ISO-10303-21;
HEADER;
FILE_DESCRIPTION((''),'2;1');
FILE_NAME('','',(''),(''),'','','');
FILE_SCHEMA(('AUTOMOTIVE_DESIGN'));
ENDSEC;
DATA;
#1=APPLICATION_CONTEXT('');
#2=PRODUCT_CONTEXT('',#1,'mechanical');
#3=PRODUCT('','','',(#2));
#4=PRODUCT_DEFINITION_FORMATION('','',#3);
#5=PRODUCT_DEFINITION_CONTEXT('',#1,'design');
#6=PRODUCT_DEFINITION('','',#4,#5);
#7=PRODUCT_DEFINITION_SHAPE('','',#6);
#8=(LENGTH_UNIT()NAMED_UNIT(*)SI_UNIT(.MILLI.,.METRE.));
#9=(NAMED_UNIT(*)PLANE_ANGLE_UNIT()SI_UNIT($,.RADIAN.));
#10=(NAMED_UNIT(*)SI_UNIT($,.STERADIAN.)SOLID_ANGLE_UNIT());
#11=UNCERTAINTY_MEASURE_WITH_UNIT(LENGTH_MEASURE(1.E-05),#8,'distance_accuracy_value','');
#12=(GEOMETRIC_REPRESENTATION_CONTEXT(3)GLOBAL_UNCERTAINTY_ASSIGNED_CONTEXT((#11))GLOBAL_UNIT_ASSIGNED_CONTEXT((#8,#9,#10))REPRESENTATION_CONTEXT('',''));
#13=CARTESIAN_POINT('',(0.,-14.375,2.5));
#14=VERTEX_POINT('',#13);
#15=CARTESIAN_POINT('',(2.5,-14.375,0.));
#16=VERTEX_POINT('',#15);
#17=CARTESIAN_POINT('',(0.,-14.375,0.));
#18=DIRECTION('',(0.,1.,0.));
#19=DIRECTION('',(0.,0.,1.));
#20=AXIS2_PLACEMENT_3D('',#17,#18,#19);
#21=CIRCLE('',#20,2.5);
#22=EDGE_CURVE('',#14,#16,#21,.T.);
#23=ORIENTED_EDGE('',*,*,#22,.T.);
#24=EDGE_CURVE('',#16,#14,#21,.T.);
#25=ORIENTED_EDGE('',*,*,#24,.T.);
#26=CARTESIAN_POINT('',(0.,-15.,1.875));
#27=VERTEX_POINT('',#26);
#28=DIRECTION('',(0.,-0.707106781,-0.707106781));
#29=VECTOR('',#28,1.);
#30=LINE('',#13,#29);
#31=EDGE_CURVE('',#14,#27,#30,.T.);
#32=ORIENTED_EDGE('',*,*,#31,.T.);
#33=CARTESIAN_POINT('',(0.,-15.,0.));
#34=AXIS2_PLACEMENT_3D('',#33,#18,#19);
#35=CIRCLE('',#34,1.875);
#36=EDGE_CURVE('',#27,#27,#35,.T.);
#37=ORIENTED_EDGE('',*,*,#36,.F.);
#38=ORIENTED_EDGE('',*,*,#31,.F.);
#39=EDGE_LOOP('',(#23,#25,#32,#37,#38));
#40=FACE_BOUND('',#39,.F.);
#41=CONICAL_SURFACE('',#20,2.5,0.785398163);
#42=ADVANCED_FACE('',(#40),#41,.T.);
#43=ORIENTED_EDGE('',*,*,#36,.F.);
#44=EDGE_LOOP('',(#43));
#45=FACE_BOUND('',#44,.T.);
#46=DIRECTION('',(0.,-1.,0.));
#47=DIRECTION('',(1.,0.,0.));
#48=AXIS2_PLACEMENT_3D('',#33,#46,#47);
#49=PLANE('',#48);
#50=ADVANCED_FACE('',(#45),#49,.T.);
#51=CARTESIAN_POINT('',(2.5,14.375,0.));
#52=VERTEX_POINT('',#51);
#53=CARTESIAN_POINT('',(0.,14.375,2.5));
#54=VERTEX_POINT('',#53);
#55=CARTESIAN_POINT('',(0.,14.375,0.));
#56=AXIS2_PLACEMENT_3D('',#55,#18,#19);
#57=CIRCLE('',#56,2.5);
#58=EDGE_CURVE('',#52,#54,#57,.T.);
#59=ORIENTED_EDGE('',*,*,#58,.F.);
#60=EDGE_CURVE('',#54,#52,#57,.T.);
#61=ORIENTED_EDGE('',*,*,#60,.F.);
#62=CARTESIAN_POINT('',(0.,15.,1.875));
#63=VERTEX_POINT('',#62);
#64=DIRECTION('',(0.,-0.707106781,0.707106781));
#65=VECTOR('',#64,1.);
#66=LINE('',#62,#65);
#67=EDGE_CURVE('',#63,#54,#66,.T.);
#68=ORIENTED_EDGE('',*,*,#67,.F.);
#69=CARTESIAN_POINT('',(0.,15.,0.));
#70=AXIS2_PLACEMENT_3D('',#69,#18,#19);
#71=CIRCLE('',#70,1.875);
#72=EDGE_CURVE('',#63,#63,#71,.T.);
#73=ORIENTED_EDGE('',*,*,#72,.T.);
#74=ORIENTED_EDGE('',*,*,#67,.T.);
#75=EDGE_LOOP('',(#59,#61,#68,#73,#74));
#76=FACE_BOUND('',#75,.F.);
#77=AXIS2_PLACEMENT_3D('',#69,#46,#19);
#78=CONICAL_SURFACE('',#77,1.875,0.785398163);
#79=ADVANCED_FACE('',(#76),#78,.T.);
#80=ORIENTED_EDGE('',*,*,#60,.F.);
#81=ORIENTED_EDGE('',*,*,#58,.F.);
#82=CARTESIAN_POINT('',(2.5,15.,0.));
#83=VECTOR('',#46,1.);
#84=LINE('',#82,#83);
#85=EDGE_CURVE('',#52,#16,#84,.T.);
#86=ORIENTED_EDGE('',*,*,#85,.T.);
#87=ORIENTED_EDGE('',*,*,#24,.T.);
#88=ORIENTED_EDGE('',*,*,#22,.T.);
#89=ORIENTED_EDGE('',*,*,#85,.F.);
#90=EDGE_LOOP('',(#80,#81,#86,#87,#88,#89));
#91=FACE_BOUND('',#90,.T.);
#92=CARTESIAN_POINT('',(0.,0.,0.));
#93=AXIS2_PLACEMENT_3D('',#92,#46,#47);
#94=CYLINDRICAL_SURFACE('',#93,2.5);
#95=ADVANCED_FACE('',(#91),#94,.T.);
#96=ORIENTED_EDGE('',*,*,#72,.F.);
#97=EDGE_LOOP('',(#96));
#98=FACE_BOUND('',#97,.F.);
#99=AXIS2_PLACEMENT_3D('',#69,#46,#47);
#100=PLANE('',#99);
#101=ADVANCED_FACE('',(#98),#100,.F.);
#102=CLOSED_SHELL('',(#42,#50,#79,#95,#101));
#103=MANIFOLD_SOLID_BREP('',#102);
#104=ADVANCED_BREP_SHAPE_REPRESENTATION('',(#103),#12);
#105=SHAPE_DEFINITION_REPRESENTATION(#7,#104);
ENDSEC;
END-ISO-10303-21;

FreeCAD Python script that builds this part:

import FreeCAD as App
import Part
import Sketcher
from FreeCAD import Vector

doc = App.newDocument("Part")
params = doc.addObject("Spreadsheet::Sheet", "Params")
for row, (alias, value) in enumerate([
    ("sketch1_diameter", "5 mm"),
    ("pad1_length", "30 mm"),
    ("sketch2_width", "30 mm"),
    ("sketch2_width2", "28.75 mm"),
    ("groove_angle", "360 deg"),
], start=1):
    params.set(f"A{row}", alias)
    params.set(f"B{row}", "=" + value)
    params.setAlias(f"B{row}", alias)

body = doc.addObject("PartDesign::Body", "Body")

sketch1 = body.newObject("Sketcher::SketchObject", "Sketch")
sketch1.AttachmentSupport = (doc.getObject("XZ_Plane"), [""])
sketch1.MapMode = "FlatFace"
sketch1.addGeometry(Part.Circle(Vector(0, 0, 0), Vector(0, 0, 1), 2.5), False)
sketch1.addConstraint([
    Sketcher.Constraint("Coincident", 0, 3, -1, 1),
    Sketcher.Constraint("Diameter", 0, 5.0),
])
sketch1.setExpression("Constraints[1]", "Params.sketch1_diameter")
pad1 = body.newObject("PartDesign::Pad", "Pad")
pad1.Profile = sketch1
pad1.setExpression("Length", "Params.pad1_length")
pad1.Midplane = True

sketch2 = body.newObject("Sketcher::SketchObject", "Sketch001")
sketch2.AttachmentSupport = (doc.getObject("YZ_Plane"), [""])
sketch2.MapMode = "FlatFace"
sketch2.addGeometry([
    Part.LineSegment(Vector(15, 4.5, 0), Vector(-15, 4.5, 0)),
    Part.LineSegment(Vector(-15, 4.5, 0), Vector(-15, 1.9, 0)),
    Part.LineSegment(Vector(-15, 1.9, 0), Vector(-14.4, 2.5, 0)),
    Part.LineSegment(Vector(-14.4, 2.5, 0), Vector(14.4, 2.5, 0)),
    Part.LineSegment(Vector(14.4, 2.5, 0), Vector(15, 1.9, 0)),
    Part.LineSegment(Vector(15, 1.9, 0), Vector(15, 4.5, 0)),
], False)
sketch2.addConstraint([
    Sketcher.Constraint("Coincident", 0, 2, 1, 1),
    Sketcher.Constraint("Coincident", 1, 2, 2, 1),
    Sketcher.Constraint("Coincident", 2, 2, 3, 1),
    Sketcher.Constraint("Coincident", 3, 2, 4, 1),
    Sketcher.Constraint("Coincident", 4, 2, 5, 1),
    Sketcher.Constraint("Coincident", 5, 2, 0, 1),
    Sketcher.Constraint("Horizontal", 0),
    Sketcher.Constraint("Vertical", 1),
    Sketcher.Constraint("Horizontal", 3),
    Sketcher.Constraint("Vertical", 5),
    Sketcher.Constraint("Symmetric", 1, 2, 4, 2, -2),
    Sketcher.Constraint("Perpendicular", 2, 4),
    Sketcher.Constraint("Equal", 2, 4),
    Sketcher.Constraint("DistanceX", 0, 2, 0, 1, 30.0),
    Sketcher.Constraint("DistanceY", 2, 2, 0, 2, 2.0),
    Sketcher.Constraint("DistanceX", 3, 1, 3, 2, 28.75),
    Sketcher.Constraint("DistanceY", -1, 1, 0, 2, 4.5),
])
sketch2.setExpression("Constraints[13]", "Params.sketch2_width")
sketch2.setExpression("Constraints[15]", "Params.sketch2_width2")
groove = body.newObject("PartDesign::Groove", "Groove")
groove.Profile = sketch2
groove.ReferenceAxis = (sketch2, ["H_Axis"])
groove.setExpression("Angle", "Params.groove_angle")

doc.recompute()
